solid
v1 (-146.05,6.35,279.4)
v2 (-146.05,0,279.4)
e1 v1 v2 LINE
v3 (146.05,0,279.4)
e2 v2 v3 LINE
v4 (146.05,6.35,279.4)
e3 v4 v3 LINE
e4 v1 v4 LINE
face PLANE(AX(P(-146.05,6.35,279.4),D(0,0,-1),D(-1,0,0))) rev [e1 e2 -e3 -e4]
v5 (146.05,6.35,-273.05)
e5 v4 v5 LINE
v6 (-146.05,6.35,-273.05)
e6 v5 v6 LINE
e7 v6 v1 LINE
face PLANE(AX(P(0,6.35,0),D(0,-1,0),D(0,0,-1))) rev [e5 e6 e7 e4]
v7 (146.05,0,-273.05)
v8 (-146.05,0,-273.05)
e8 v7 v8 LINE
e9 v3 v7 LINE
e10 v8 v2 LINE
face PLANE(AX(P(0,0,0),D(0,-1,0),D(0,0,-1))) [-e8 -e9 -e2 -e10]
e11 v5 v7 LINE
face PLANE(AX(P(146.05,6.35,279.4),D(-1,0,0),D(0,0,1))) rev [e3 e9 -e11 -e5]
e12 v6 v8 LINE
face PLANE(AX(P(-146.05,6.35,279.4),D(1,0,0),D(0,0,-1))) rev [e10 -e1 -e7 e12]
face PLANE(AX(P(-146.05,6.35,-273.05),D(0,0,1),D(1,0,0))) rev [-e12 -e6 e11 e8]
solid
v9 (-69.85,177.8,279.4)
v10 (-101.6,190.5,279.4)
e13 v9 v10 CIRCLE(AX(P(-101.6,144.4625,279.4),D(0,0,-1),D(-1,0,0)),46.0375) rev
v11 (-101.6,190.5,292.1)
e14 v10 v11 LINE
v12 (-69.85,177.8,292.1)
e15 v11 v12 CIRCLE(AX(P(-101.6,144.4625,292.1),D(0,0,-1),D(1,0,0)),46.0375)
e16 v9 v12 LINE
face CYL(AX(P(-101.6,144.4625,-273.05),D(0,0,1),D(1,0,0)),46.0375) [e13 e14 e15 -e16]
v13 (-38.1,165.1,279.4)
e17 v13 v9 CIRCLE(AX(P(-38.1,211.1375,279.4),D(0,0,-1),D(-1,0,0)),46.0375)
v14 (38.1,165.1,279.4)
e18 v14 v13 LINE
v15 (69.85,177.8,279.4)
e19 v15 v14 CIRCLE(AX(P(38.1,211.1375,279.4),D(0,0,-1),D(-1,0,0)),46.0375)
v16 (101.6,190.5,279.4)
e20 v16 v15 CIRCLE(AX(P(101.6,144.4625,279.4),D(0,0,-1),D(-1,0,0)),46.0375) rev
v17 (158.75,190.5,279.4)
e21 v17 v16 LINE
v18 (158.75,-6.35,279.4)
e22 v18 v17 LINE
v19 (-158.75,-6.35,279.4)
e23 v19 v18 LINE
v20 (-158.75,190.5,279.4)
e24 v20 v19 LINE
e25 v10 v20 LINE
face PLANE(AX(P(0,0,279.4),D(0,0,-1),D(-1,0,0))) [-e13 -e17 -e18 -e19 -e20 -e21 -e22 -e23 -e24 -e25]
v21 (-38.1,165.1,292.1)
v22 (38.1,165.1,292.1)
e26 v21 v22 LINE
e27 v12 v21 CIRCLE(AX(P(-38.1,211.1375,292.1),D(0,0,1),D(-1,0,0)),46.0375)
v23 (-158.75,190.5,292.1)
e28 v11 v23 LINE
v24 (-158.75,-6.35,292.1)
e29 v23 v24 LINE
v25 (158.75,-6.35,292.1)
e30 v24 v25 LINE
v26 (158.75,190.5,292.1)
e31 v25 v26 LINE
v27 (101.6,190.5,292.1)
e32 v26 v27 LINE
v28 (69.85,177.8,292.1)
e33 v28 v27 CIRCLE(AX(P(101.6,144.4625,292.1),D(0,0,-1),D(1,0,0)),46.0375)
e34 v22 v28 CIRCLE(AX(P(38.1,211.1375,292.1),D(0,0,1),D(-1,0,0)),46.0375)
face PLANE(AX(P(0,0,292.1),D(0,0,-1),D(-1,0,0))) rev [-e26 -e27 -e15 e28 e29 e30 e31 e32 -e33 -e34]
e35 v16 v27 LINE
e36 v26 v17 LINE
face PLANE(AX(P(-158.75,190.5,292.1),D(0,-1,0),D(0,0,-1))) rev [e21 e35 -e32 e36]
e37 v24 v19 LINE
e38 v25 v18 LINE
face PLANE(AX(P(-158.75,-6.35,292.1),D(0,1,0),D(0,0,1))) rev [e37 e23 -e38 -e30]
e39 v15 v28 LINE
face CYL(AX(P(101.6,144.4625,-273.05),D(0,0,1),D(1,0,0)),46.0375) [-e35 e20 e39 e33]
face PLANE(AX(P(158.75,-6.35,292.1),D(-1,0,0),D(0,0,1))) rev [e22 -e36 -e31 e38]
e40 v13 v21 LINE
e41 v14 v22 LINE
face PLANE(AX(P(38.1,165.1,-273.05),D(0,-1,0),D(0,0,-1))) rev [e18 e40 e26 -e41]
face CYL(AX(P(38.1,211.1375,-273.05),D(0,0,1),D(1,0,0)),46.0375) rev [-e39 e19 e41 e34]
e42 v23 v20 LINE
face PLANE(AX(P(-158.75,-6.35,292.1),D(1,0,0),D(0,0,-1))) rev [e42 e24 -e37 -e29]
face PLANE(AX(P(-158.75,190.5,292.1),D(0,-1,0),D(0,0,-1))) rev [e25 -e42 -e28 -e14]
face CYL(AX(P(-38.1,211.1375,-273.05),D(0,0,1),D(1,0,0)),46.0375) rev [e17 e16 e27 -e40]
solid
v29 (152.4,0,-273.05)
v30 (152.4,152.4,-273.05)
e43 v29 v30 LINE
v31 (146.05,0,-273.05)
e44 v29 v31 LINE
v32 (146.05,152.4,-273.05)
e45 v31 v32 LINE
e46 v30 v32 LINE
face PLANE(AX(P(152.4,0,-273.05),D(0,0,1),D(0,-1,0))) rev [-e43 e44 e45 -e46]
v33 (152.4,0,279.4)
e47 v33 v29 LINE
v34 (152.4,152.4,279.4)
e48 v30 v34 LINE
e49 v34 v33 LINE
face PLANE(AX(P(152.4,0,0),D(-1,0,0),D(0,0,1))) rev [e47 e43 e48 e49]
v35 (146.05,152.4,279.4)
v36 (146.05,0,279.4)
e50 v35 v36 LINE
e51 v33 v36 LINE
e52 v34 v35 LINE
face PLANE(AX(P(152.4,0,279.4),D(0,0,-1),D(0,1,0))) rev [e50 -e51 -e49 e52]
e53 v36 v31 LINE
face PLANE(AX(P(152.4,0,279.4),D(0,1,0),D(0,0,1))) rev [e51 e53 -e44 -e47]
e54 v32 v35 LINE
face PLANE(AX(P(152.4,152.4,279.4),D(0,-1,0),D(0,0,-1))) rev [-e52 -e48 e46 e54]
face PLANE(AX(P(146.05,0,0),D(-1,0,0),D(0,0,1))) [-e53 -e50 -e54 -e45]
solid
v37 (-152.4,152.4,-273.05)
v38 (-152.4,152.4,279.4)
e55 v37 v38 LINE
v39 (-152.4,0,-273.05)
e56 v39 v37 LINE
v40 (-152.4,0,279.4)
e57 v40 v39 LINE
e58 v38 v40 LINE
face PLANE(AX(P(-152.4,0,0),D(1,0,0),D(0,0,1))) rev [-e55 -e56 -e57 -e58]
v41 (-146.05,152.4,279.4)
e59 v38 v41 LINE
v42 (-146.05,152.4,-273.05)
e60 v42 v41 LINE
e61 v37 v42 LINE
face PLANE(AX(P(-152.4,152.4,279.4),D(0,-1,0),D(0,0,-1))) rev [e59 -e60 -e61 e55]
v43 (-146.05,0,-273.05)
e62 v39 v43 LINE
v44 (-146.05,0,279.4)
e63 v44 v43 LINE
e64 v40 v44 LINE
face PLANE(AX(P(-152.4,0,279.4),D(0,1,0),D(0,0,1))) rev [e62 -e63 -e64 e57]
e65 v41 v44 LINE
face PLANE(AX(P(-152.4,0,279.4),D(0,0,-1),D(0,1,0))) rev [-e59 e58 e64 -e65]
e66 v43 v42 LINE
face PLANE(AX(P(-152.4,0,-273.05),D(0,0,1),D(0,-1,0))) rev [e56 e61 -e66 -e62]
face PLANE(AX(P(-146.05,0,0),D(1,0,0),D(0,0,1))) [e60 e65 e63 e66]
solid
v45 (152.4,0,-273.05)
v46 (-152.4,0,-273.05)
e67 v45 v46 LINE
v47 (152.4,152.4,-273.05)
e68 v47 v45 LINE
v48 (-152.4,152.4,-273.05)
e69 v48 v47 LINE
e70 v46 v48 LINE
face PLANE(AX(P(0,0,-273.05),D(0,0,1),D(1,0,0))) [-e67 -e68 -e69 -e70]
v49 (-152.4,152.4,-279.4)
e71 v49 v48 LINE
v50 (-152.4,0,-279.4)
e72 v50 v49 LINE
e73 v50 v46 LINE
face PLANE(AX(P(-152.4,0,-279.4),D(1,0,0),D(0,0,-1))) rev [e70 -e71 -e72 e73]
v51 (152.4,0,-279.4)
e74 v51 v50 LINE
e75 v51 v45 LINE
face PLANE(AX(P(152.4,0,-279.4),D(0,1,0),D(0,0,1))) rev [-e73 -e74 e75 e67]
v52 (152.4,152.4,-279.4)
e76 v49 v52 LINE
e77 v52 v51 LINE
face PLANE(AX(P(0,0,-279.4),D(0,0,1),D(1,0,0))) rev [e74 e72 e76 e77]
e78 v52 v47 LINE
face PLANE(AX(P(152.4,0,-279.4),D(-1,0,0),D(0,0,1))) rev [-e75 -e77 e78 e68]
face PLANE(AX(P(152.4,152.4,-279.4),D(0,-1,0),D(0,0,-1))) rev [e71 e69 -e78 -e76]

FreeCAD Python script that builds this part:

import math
import FreeCAD as App
import Part
import Sketcher
Q = App.Units.Quantity

doc = App.newDocument("Part")
body = doc.addObject("PartDesign::Body", "Body")

sketch1 = body.newObject("Sketcher::SketchObject", "Sketch")
sketch1.AttachmentSupport = (doc.getObject("XZ_Plane"), [""])
sketch1.MapMode = "FlatFace"
sketch1.addGeometry([
    Part.LineSegment(App.Vector(-146.05, -273.05, 0), App.Vector(-146.05, 279.4, 0)),
    Part.LineSegment(App.Vector(-146.05, 279.4, 0), App.Vector(146.05, 279.4, 0)),
    Part.LineSegment(App.Vector(146.05, 279.4, 0), App.Vector(146.05, -273.05, 0)),
    Part.LineSegment(App.Vector(146.05, -273.05, 0), App.Vector(-146.05, -273.05, 0)),
], False)
sketch1.addConstraint([
    Sketcher.Constraint("Coincident", 0, 2, 1, 1),
    Sketcher.Constraint("Coincident", 1, 2, 2, 1),
    Sketcher.Constraint("Coincident", 2, 2, 3, 1),
    Sketcher.Constraint("Coincident", 3, 2, 0, 1),
    Sketcher.Constraint("Vertical", 0),
    Sketcher.Constraint("Horizontal", 1),
    Sketcher.Constraint("Vertical", 2),
    Sketcher.Constraint("Horizontal", 3),
    Sketcher.Constraint("DistanceX", 1, 1, 1, 2, Q("11.5 in")),
    Sketcher.Constraint("DistanceY", -1, 1, 0, 2, Q("11 in")),
    Sketcher.Constraint("DistanceY", 0, 1, 0, 2, Q("21.75 in")),
    Sketcher.Constraint("DistanceX", 0, 2, -1, 1, Q("5.75 in")),
])
pad1 = body.newObject("PartDesign::Pad", "Pad")
pad1.Profile = sketch1
pad1.Length = Q("0.25 in")
pad1.Reversed = True
body2 = doc.addObject("PartDesign::Body", "Body001")

sketch2 = body2.newObject("Sketcher::SketchObject", "Sketch001")
sketch2.AttachmentSupport = (doc.getObject("XY_Plane001"), [""])
sketch2.MapMode = "FlatFace"
sketch2.AttachmentOffset = App.Placement(App.Vector(0, 0, 11 * 25.4), App.Rotation())
sketch2.addGeometry([
    Part.LineSegment(App.Vector(-158.75, 190.5, 0), App.Vector(-158.75, -6.35, 0)),
    Part.LineSegment(App.Vector(-158.75, -6.35, 0), App.Vector(158.75, -6.35, 0)),
    Part.LineSegment(App.Vector(158.75, -6.35, 0), App.Vector(158.75, 190.5, 0)),
    Part.LineSegment(App.Vector(158.75, 190.5, 0), App.Vector(-158.75, 190.5, 0)),
], False)
sketch2.addConstraint([
    Sketcher.Constraint("Coincident", 0, 2, 1, 1),
    Sketcher.Constraint("Coincident", 1, 2, 2, 1),
    Sketcher.Constraint("Coincident", 2, 2, 3, 1),
    Sketcher.Constraint("Coincident", 3, 2, 0, 1),
    Sketcher.Constraint("Vertical", 0),
    Sketcher.Constraint("Horizontal", 1),
    Sketcher.Constraint("Vertical", 2),
    Sketcher.Constraint("Horizontal", 3),
    Sketcher.Constraint("DistanceX", 1, 1, 1, 2, Q("12.5 in")),
    Sketcher.Constraint("DistanceY", 0, 2, 0, 1, Q("7.75 in")),
    Sketcher.Constraint("DistanceY", -1, 1, 2, 2, Q("7.5 in")),
    Sketcher.Constraint("DistanceX", 0, 2, -1, 1, Q("6.25 in")),
])
pad2 = body2.newObject("PartDesign::Pad", "Pad001")
pad2.Profile = sketch2
pad2.Length = Q("0.5 in")

sketch3 = body2.newObject("Sketcher::SketchObject", "Sketch002")
sketch3.AttachmentSupport = (doc.getObject("XY_Plane001"), [""])
sketch3.MapMode = "FlatFace"
sketch3.AttachmentOffset = App.Placement(App.Vector(0, 0, 11.5 * 25.4), App.Rotation())
sketch3.addGeometry([
    Part.LineSegment(App.Vector(101.6, 203.2, 0), App.Vector(-101.6, 203.2, 0)),
    Part.LineSegment(App.Vector(-101.6, 203.2, 0), App.Vector(-101.6, 190.5, 0)),
    Part.ArcOfCircle(Part.Circle(App.Vector(-101.6, 144.4625, 0), App.Vector(0, 0, 1), 46.0375), math.radians(46.397181), math.radians(90)),
    Part.ArcOfCircle(Part.Circle(App.Vector(-38.1, 211.1375, 0), App.Vector(0, 0, 1), 46.0375), math.radians(-133.602819), math.radians(-90)),
    Part.LineSegment(App.Vector(-38.1, 165.1, 0), App.Vector(38.1, 165.1, 0)),
    Part.ArcOfCircle(Part.Circle(App.Vector(38.1, 211.1375, 0), App.Vector(0, 0, 1), 46.0375), math.radians(-90), math.radians(-46.397181)),
    Part.ArcOfCircle(Part.Circle(App.Vector(101.6, 144.4625, 0), App.Vector(0, 0, 1), 46.0375), math.radians(90), math.radians(133.602819)),
    Part.LineSegment(App.Vector(101.6, 190.5, 0), App.Vector(101.6, 203.2, 0)),
], False)
sketch3.addConstraint([
    Sketcher.Constraint("Coincident", 0, 2, 1, 1),
    Sketcher.Constraint("Coincident", 1, 2, 2, 2),
    Sketcher.Constraint("Tangent", 2, 1, 3, 1),
    Sketcher.Constraint("Tangent", 3, 2, 4, 1),
    Sketcher.Constraint("Tangent", 4, 2, 5, 1),
    Sketcher.Constraint("Tangent", 5, 2, 6, 2),
    Sketcher.Constraint("Coincident", 6, 1, 7, 1),
    Sketcher.Constraint("Coincident", 7, 2, 0, 1),
    Sketcher.Constraint("Horizontal", 0),
    Sketcher.Constraint("Vertical", 1),
    Sketcher.Constraint("Horizontal", 4),
    Sketcher.Constraint("Vertical", 7),
    Sketcher.Constraint("Equal", 2, 3),
    Sketcher.Constraint("Equal", 3, 5),
    Sketcher.Constraint("Equal", 5, 6),
    Sketcher.Constraint("Symmetric", 2, 3, 6, 3, -2),
    Sketcher.Constraint("Vertical", 2, 3, 0, 2),
    Sketcher.Constraint("DistanceX", 0, 2, 0, 1, Q("8 in")),
    Sketcher.Constraint("DistanceX", 4, 1, 4, 2, Q("3 in")),
    Sketcher.Constraint("DistanceY", 1, 2, 1, 1, Q("0.5 in")),
    Sketcher.Constraint("DistanceX", 2, 3, -1, 1, Q("4 in")),
    Sketcher.Constraint("DistanceY", -1, 1, 0, 2, Q("8 in")),
    Sketcher.Constraint("DistanceY", -1, 1, 2, 1, Q("7 in")),
])
pocket1 = body2.newObject("PartDesign::Pocket", "Pocket")
pocket1.Profile = sketch3
pocket1.Type = "ThroughAll"
body3 = doc.addObject("PartDesign::Body", "Body002")

sketch4 = body3.newObject("Sketcher::SketchObject", "Sketch003")
sketch4.AttachmentSupport = (doc.getObject("YZ_Plane002"), [""])
sketch4.MapMode = "FlatFace"
sketch4.AttachmentOffset = App.Placement(App.Vector(0, 0, 5.75 * 25.4), App.Rotation())
sketch4.addGeometry([
    Part.LineSegment(App.Vector(152.4, 279.4, 0), App.Vector(0, 279.4, 0)),
    Part.LineSegment(App.Vector(0, 279.4, 0), App.Vector(0, -273.05, 0)),
    Part.LineSegment(App.Vector(0, -273.05, 0), App.Vector(152.4, -273.05, 0)),
    Part.LineSegment(App.Vector(152.4, -273.05, 0), App.Vector(152.4, 279.4, 0)),
], False)
sketch4.addConstraint([
    Sketcher.Constraint("Coincident", 0, 2, 1, 1),
    Sketcher.Constraint("Coincident", 1, 2, 2, 1),
    Sketcher.Constraint("Coincident", 2, 2, 3, 1),
    Sketcher.Constraint("Coincident", 3, 2, 0, 1),
    Sketcher.Constraint("Horizontal", 0),
    Sketcher.Constraint("Vertical", 1),
    Sketcher.Constraint("Horizontal", 2),
    Sketcher.Constraint("Vertical", 3),
    Sketcher.Constraint("PointOnObject", 0, 2, -2),
    Sketcher.Constraint("DistanceX", 0, 2, 0, 1, Q("6 in")),
    Sketcher.Constraint("DistanceY", -1, 1, 0, 2, Q("11 in")),
    Sketcher.Constraint("DistanceY", 1, 2, 1, 1, Q("21.75 in")),
])
pad3 = body3.newObject("PartDesign::Pad", "Pad002")
pad3.Profile = sketch4
pad3.Length = Q("0.25 in")
body4 = doc.addObject("PartDesign::Body", "Body003")
doc.recompute()

mirroring = doc.addObject("Part::Mirroring", "Mirroring")
mirroring.Source = body3
mirroring.Base = App.Vector(0, 0, 0)
mirroring.Normal = App.Vector(1, 0, 0)
body4.BaseFeature = mirroring
doc.recompute()
body5 = doc.addObject("PartDesign::Body", "Body004")

sketch5 = body5.newObject("Sketcher::SketchObject", "Sketch004")
sketch5.AttachmentSupport = (doc.getObject("XY_Plane004"), [""])
sketch5.MapMode = "FlatFace"
sketch5.AttachmentOffset = App.Placement(App.Vector(0, 0, -10.75 * 25.4), App.Rotation())
sketch5.addGeometry([
    Part.LineSegment(App.Vector(152.4, 152.4, 0), App.Vector(152.4, 0, 0)),
    Part.LineSegment(App.Vector(152.4, 0, 0), App.Vector(-152.4, 0, 0)),
    Part.LineSegment(App.Vector(-152.4, 0, 0), App.Vector(-152.4, 152.4, 0)),
    Part.LineSegment(App.Vector(-152.4, 152.4, 0), App.Vector(152.4, 152.4, 0)),
], False)
sketch5.addConstraint([
    Sketcher.Constraint("Coincident", 0, 2, 1, 1),
    Sketcher.Constraint("Coincident", 1, 2, 2, 1),
    Sketcher.Constraint("Coincident", 2, 2, 3, 1),
    Sketcher.Constraint("Coincident", 3, 2, 0, 1),
    Sketcher.Constraint("Vertical", 0),
    Sketcher.Constraint("Horizontal", 1),
    Sketcher.Constraint("Vertical", 2),
    Sketcher.Constraint("Horizontal", 3),
    Sketcher.Constraint("Symmetric", 0, 2, 1, 2, -1, 1),
    Sketcher.Constraint("DistanceX", 1, 2, 1, 1, Q("12 in")),
    Sketcher.Constraint("DistanceY", 0, 2, 0, 1, Q("6 in")),
])
pad4 = body5.newObject("PartDesign::Pad", "Pad003")
pad4.Profile = sketch5
pad4.Length = Q("0.25 in")
pad4.Reversed = True
mirroring.Visibility = False

doc.recompute()
